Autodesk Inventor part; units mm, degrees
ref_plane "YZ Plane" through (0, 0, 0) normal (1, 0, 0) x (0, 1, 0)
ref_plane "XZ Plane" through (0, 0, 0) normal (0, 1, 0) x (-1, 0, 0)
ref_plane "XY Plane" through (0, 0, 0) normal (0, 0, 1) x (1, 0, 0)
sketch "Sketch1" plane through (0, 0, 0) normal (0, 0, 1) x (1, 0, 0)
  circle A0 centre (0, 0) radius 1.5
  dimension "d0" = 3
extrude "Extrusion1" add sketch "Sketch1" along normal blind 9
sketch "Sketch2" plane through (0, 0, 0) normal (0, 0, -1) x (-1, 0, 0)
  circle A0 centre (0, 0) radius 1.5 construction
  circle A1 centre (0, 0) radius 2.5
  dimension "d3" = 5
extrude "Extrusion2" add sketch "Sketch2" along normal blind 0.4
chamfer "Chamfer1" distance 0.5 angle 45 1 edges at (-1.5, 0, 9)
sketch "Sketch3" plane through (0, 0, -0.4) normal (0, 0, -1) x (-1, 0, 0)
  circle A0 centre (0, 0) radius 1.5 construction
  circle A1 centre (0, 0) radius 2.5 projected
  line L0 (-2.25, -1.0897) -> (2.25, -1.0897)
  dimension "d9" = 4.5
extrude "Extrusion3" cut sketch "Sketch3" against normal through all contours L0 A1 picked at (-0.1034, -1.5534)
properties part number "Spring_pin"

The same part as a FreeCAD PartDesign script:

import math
import FreeCAD as App
import Part
import Sketcher
from FreeCAD import Vector
Q = App.Units.Quantity


def edges_at(feature, points):
    """Names of the edges that pass closest to the given points."""
    edges = feature.Shape.Edges
    near = lambda p: min(range(len(edges)), key=lambda i: edges[i].distToShape(Part.Vertex(*p))[0])
    return sorted({f"Edge{near(p) + 1}" for p in points})

doc = App.newDocument("Part")
body = doc.addObject("PartDesign::Body", "Body")

# Sketch on XY plane
sketch1 = body.newObject("Sketcher::SketchObject", "Sketch")
sketch1.AttachmentSupport = (doc.getObject("XY_Plane"), [""])
sketch1.MapMode = "FlatFace"
sketch1.addGeometry(Part.Circle(Vector(0, 0, 0), Vector(0, 0, 1), 1.5), False)
sketch1.addConstraint([
    Sketcher.Constraint("Coincident", 0, 3, -1, 1),
    Sketcher.Constraint("Diameter", 0, Q("3 mm")),
])
pad1 = body.newObject("PartDesign::Pad", "Pad")
pad1.Profile = sketch1
pad1.Length = 9

# Sketch on XY plane
sketch2 = body.newObject("Sketcher::SketchObject", "Sketch001")
sketch2.AttachmentSupport = (doc.getObject("XY_Plane"), [""])
sketch2.MapMode = "FlatFace"
sketch2.addGeometry(Part.Circle(Vector(0, 0, 0), Vector(0, 0, 1), 2.5), False)
sketch2.addConstraint([
    Sketcher.Constraint("Coincident", 0, 3, -1, 1),
    Sketcher.Constraint("Diameter", 0, Q("5 mm")),
])
pad2 = body.newObject("PartDesign::Pad", "Pad001")
pad2.Profile = sketch2
pad2.Length = 0.4
pad2.Reversed = True
doc.recompute()

chamfer = body.newObject("PartDesign::Chamfer", "Chamfer")
chamfer.Base = (pad2, edges_at(pad2, [(-1.5, 0, 9)]))
chamfer.Size = 0.5

# Sketch on XY plane
sketch3 = body.newObject("Sketcher::SketchObject", "Sketch002")
sketch3.AttachmentSupport = (doc.getObject("XY_Plane"), [""])
sketch3.MapMode = "FlatFace"
sketch3.AttachmentOffset = App.Placement(Vector(0, 0, -0.4), App.Rotation())
sketch3.addGeometry([
    Part.LineSegment(Vector(-2.2, -1.1, 0), Vector(2.2, -1.1, 0)),
    Part.ArcOfCircle(Part.Circle(Vector(0, 0, 0), Vector(0, 0, 1), 2.5), math.radians(-154), math.radians(-26)),
], False)
sketch3.addConstraint([
    Sketcher.Constraint("Coincident", 0, 1, 1, 1),
    Sketcher.Constraint("Coincident", 1, 2, 0, 2),
    Sketcher.Constraint("Horizontal", 0),
    Sketcher.Constraint("Coincident", 1, 3, -1, 1),
    Sketcher.Constraint("DistanceX", 0, 1, 0, 2, Q("4.5 mm")),
    Sketcher.Constraint("Radius", 1, Q("2.5 mm")),
])
pocket1 = body.newObject("PartDesign::Pocket", "Pocket")
pocket1.Profile = sketch3
pocket1.Type = "ThroughAll"
pocket1.Reversed = True

doc.recompute()
